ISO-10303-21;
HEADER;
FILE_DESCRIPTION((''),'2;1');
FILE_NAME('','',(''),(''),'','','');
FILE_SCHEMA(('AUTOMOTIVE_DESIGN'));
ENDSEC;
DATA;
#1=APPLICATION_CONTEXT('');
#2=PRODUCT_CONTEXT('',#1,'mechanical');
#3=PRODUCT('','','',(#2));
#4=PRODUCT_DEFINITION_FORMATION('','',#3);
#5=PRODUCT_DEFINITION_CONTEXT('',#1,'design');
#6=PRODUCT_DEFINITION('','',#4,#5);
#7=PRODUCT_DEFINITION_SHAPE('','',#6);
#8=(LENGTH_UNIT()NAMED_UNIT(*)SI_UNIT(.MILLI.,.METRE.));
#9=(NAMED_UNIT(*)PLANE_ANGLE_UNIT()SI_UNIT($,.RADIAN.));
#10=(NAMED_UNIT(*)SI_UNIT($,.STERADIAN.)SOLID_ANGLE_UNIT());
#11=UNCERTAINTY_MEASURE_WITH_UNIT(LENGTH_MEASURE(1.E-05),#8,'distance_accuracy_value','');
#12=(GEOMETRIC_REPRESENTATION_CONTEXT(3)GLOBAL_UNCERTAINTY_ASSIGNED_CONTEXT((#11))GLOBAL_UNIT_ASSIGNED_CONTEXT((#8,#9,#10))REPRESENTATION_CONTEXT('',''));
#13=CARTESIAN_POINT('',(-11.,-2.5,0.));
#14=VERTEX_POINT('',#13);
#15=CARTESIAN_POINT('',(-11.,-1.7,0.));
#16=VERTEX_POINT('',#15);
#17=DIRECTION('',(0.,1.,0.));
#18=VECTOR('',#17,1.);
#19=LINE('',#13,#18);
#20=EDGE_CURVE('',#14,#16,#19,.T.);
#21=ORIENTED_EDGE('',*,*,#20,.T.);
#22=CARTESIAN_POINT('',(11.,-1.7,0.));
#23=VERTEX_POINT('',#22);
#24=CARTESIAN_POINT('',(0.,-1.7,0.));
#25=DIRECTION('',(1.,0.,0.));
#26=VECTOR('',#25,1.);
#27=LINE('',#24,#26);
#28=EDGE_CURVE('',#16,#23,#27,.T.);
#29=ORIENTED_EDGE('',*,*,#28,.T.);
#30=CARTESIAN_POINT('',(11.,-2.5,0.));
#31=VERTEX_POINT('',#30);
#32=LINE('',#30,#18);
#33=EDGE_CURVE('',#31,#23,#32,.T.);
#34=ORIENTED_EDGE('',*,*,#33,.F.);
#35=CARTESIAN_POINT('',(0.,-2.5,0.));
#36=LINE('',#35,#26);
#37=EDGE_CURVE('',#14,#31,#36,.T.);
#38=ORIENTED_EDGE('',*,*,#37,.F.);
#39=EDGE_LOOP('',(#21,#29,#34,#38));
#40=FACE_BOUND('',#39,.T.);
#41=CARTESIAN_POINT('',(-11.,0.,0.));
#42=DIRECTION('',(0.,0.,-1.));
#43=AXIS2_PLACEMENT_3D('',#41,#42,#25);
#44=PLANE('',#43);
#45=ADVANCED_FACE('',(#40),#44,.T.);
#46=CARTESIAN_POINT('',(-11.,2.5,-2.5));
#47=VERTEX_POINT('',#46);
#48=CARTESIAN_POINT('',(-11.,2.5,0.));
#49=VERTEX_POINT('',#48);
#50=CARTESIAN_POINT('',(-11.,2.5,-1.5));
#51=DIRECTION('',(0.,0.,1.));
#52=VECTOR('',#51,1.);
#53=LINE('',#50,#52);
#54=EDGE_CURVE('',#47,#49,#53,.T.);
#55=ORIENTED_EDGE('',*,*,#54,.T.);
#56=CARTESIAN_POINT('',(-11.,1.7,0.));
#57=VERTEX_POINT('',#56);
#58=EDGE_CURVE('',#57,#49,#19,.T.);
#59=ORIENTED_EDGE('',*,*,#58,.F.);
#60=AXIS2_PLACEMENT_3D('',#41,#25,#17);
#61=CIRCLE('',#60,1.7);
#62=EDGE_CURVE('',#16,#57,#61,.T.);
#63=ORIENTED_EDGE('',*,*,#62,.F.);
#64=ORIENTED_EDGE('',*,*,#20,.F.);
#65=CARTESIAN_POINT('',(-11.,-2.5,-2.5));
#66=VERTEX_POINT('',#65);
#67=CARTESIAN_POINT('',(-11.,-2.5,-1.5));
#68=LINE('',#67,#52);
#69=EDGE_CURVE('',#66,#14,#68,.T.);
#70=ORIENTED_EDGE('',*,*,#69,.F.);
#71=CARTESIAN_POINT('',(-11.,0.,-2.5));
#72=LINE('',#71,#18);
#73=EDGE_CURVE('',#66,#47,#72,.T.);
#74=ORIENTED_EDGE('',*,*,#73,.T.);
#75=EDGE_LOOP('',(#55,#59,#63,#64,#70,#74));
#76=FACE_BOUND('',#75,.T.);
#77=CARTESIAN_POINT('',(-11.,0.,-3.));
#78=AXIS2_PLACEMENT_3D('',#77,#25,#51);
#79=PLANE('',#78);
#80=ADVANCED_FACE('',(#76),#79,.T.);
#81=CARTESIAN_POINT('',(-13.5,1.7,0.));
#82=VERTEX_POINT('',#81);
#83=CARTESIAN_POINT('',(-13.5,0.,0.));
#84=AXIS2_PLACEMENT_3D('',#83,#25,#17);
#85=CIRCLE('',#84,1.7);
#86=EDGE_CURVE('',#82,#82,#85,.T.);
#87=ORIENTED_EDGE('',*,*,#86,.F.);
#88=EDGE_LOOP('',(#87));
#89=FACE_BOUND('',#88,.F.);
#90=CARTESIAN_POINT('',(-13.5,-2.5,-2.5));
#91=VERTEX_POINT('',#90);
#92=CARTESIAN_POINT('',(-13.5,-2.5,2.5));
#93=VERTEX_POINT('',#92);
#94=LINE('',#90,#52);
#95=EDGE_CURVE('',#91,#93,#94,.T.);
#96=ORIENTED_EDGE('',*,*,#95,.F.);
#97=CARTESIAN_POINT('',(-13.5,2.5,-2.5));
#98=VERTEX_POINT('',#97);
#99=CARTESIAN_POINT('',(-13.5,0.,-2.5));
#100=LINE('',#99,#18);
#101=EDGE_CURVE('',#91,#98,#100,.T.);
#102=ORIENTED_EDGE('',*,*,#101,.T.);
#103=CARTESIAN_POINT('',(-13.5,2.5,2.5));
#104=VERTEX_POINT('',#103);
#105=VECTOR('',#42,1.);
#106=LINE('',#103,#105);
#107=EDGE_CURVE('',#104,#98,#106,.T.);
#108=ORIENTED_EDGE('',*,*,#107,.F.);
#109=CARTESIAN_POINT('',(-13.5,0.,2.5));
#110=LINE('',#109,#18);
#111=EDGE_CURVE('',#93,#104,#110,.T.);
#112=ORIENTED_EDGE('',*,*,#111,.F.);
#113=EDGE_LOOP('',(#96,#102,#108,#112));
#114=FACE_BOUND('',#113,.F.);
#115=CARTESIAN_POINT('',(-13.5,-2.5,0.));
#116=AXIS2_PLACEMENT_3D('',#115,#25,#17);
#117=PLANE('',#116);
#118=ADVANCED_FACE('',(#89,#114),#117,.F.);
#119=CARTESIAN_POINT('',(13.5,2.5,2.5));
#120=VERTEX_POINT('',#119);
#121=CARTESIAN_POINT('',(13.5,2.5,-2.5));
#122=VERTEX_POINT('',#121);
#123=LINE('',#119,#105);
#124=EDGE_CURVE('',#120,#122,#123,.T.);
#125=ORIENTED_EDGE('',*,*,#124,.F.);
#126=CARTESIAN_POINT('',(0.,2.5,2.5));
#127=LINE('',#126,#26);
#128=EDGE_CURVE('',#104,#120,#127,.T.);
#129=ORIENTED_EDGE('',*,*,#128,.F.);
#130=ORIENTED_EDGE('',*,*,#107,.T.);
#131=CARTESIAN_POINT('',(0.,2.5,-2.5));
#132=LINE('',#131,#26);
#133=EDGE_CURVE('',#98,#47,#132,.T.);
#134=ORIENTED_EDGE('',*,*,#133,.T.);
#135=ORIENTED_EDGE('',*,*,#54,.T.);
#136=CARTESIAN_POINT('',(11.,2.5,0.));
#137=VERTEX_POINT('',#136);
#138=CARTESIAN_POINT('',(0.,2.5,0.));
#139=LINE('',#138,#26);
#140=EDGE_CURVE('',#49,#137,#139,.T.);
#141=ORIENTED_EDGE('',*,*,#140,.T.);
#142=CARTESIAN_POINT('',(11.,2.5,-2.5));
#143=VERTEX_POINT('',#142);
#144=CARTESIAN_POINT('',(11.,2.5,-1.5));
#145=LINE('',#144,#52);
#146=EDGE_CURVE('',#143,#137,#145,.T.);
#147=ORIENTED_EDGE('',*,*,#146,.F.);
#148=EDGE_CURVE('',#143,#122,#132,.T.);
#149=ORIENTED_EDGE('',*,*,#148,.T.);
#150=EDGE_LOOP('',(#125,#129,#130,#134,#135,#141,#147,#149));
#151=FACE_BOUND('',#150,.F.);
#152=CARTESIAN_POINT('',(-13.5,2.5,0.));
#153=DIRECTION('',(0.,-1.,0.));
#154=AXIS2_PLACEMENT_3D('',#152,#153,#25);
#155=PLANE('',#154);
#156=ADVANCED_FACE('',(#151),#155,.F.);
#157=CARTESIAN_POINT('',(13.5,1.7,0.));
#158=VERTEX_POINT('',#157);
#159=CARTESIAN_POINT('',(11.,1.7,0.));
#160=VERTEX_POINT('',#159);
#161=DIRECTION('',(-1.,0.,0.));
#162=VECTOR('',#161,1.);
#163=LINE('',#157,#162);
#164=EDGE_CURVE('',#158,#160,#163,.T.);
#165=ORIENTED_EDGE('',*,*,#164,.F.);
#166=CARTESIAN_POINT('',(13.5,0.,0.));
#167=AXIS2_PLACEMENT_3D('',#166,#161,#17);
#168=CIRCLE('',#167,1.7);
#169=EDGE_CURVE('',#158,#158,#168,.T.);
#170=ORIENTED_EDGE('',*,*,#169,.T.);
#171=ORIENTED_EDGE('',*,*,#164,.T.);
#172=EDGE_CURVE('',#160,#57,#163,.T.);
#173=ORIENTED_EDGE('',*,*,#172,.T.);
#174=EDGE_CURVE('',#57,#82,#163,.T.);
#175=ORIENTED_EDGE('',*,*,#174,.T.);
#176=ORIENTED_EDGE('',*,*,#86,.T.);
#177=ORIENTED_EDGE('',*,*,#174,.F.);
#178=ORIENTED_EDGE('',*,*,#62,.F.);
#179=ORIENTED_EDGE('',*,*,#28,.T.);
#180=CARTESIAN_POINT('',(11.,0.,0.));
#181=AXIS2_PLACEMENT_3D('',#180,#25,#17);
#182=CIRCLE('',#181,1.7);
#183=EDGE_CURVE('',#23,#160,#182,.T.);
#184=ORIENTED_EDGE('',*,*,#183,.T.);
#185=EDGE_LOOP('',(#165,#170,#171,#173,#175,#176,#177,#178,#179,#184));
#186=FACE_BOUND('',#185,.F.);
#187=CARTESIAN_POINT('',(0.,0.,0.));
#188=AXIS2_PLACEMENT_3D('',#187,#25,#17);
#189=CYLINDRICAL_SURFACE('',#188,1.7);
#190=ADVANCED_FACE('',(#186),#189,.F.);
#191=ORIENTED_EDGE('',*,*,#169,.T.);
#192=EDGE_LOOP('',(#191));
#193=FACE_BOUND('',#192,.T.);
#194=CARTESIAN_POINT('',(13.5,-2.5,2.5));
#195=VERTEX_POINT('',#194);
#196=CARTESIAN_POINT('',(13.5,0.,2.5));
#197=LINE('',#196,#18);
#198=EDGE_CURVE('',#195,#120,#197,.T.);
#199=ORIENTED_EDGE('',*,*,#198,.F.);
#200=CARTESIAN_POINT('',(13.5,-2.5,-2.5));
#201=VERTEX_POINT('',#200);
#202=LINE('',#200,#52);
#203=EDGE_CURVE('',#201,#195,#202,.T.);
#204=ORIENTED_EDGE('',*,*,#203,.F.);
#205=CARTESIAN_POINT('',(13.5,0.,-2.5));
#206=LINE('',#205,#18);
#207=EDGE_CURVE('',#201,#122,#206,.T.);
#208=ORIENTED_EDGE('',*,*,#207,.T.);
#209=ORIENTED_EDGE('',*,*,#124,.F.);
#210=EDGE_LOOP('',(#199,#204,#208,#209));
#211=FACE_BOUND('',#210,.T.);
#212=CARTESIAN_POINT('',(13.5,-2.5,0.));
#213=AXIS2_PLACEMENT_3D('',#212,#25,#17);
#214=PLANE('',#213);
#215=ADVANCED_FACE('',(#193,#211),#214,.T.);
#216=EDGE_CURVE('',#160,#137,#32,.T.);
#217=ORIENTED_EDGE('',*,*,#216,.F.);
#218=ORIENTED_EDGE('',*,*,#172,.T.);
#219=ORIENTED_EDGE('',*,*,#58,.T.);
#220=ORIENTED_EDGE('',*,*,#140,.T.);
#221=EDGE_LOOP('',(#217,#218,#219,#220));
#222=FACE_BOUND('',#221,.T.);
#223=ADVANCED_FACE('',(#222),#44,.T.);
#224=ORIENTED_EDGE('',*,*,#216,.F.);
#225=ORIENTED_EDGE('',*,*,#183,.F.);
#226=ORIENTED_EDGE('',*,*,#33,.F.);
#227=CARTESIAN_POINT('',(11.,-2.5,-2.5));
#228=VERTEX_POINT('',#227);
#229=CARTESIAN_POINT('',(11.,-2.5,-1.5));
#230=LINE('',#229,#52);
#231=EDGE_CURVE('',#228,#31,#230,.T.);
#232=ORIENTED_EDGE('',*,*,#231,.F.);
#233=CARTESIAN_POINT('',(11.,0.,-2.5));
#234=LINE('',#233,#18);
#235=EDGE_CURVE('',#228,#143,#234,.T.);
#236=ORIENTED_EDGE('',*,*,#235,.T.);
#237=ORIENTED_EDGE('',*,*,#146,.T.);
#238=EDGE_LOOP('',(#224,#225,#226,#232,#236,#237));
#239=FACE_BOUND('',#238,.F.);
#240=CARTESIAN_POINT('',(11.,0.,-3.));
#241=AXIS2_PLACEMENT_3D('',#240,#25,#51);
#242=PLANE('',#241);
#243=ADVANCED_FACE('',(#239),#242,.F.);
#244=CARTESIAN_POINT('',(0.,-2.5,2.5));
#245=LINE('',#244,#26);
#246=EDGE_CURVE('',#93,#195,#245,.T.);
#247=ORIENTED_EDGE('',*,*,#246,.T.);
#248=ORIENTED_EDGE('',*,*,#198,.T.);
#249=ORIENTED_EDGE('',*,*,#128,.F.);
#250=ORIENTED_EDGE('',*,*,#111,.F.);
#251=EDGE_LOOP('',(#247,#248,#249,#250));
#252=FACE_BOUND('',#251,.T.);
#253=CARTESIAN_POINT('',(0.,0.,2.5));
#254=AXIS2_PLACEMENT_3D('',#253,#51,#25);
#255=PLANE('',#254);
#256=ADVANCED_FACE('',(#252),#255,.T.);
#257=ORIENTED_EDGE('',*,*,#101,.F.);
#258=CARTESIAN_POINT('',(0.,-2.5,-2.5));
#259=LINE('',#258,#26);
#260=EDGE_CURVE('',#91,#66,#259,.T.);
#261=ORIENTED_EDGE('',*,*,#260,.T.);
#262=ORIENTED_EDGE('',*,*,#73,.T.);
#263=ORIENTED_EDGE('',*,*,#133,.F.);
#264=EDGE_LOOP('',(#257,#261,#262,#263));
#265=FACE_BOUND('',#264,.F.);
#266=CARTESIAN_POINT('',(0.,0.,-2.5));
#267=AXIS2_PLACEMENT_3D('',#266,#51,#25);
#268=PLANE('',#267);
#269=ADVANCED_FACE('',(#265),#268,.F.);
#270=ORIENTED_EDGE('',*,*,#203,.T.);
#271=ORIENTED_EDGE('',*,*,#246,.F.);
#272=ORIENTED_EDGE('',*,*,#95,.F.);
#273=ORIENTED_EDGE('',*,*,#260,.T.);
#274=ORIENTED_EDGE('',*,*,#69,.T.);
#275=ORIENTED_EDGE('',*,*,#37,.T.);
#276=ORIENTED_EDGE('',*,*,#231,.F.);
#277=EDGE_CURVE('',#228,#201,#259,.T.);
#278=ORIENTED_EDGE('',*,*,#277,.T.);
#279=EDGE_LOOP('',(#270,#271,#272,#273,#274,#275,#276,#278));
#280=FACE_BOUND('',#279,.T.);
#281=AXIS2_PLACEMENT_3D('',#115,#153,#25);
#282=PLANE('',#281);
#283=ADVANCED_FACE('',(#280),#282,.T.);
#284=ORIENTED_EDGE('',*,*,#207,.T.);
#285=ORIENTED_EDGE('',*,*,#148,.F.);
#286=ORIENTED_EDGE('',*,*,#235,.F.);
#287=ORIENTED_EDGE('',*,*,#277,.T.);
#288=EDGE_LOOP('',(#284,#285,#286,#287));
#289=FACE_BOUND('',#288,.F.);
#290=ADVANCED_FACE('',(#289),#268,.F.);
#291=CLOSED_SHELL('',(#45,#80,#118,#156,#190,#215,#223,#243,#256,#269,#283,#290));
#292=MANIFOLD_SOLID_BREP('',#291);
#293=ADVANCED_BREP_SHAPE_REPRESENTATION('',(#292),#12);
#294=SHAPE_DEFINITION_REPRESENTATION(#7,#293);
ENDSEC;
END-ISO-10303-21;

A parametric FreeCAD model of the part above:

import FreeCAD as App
import Part
import Sketcher
from FreeCAD import Vector


def add_polygon(sketch, points):
    """Adds a closed chain of lines whose ends are joined by coincident constraints."""
    first, n = sketch.GeometryCount, len(points)
    for a, b in zip(points, points[1:] + points[:1]):
        sketch.addGeometry(Part.LineSegment(App.Vector(*a, 0), App.Vector(*b, 0)), False)
    for i in range(n):
        sketch.addConstraint(Sketcher.Constraint("Coincident", first + i, 2, first + (i + 1) % n, 1))

doc = App.newDocument("Part")
body = doc.addObject("PartDesign::Body", "Body")

# Sketch on XY plane
sketch1 = body.newObject("Sketcher::SketchObject", "Sketch")
sketch1.AttachmentSupport = (doc.getObject("XY_Plane"), [""])
sketch1.MapMode = "FlatFace"
add_polygon(sketch1, [(-14, 2), (-14, -2), (14, -2), (14, 2)])  # lines 0-3
sketch1.addConstraint([
    Sketcher.Constraint("Vertical", 0),
    Sketcher.Constraint("Horizontal", 1),
    Sketcher.Constraint("Vertical", 2),
    Sketcher.Constraint("Horizontal", 3),
    Sketcher.Constraint("Symmetric", 0, 2, 2, 2, -1, 1),
    Sketcher.Constraint("DistanceX", 1, 1, 1, 2, 27.0),
    Sketcher.Constraint("DistanceY", 0, 2, 0, 1, 5.0),
])
pad1 = body.newObject("PartDesign::Pad", "Pad")
pad1.Profile = sketch1
pad1.Length = 5
pad1.Midplane = True

# Sketch on YZ plane
sketch2 = body.newObject("Sketcher::SketchObject", "Sketch001")
sketch2.AttachmentSupport = (doc.getObject("YZ_Plane"), [""])
sketch2.MapMode = "FlatFace"
sketch2.addGeometry(Part.Circle(Vector(0, 0, 0), Vector(0, 0, 1), 1.7), False)
sketch2.addConstraint([
    Sketcher.Constraint("Coincident", 0, 3, -1, 1),
    Sketcher.Constraint("Diameter", 0, 3.4),
])
pocket1 = body.newObject("PartDesign::Pocket", "Pocket")
pocket1.Profile = sketch2
pocket1.Type = "ThroughAll"
pocket1.Midplane = True

# Sketch on XZ plane
sketch3 = body.newObject("Sketcher::SketchObject", "Sketch002")
sketch3.AttachmentSupport = (doc.getObject("XZ_Plane"), [""])
sketch3.MapMode = "FlatFace"
add_polygon(sketch3, [(-11, 0), (-11, -3), (11, -3), (11, 0)])  # lines 0-3
sketch3.addConstraint([
    Sketcher.Constraint("Vertical", 0),
    Sketcher.Constraint("Horizontal", 1),
    Sketcher.Constraint("Vertical", 2),
    Sketcher.Constraint("Horizontal", 3),
    Sketcher.Constraint("Symmetric", 2, 2, 3, 2, -1, 1),
    Sketcher.Constraint("DistanceX", 1, 1, 1, 2, 22.0),
    Sketcher.Constraint("DistanceY", 0, 2, 0, 1, 3.0),
])
pocket2 = body.newObject("PartDesign::Pocket", "Pocket001")
pocket2.Profile = sketch3
pocket2.Length = 5
pocket2.Midplane = True

doc.recompute()
